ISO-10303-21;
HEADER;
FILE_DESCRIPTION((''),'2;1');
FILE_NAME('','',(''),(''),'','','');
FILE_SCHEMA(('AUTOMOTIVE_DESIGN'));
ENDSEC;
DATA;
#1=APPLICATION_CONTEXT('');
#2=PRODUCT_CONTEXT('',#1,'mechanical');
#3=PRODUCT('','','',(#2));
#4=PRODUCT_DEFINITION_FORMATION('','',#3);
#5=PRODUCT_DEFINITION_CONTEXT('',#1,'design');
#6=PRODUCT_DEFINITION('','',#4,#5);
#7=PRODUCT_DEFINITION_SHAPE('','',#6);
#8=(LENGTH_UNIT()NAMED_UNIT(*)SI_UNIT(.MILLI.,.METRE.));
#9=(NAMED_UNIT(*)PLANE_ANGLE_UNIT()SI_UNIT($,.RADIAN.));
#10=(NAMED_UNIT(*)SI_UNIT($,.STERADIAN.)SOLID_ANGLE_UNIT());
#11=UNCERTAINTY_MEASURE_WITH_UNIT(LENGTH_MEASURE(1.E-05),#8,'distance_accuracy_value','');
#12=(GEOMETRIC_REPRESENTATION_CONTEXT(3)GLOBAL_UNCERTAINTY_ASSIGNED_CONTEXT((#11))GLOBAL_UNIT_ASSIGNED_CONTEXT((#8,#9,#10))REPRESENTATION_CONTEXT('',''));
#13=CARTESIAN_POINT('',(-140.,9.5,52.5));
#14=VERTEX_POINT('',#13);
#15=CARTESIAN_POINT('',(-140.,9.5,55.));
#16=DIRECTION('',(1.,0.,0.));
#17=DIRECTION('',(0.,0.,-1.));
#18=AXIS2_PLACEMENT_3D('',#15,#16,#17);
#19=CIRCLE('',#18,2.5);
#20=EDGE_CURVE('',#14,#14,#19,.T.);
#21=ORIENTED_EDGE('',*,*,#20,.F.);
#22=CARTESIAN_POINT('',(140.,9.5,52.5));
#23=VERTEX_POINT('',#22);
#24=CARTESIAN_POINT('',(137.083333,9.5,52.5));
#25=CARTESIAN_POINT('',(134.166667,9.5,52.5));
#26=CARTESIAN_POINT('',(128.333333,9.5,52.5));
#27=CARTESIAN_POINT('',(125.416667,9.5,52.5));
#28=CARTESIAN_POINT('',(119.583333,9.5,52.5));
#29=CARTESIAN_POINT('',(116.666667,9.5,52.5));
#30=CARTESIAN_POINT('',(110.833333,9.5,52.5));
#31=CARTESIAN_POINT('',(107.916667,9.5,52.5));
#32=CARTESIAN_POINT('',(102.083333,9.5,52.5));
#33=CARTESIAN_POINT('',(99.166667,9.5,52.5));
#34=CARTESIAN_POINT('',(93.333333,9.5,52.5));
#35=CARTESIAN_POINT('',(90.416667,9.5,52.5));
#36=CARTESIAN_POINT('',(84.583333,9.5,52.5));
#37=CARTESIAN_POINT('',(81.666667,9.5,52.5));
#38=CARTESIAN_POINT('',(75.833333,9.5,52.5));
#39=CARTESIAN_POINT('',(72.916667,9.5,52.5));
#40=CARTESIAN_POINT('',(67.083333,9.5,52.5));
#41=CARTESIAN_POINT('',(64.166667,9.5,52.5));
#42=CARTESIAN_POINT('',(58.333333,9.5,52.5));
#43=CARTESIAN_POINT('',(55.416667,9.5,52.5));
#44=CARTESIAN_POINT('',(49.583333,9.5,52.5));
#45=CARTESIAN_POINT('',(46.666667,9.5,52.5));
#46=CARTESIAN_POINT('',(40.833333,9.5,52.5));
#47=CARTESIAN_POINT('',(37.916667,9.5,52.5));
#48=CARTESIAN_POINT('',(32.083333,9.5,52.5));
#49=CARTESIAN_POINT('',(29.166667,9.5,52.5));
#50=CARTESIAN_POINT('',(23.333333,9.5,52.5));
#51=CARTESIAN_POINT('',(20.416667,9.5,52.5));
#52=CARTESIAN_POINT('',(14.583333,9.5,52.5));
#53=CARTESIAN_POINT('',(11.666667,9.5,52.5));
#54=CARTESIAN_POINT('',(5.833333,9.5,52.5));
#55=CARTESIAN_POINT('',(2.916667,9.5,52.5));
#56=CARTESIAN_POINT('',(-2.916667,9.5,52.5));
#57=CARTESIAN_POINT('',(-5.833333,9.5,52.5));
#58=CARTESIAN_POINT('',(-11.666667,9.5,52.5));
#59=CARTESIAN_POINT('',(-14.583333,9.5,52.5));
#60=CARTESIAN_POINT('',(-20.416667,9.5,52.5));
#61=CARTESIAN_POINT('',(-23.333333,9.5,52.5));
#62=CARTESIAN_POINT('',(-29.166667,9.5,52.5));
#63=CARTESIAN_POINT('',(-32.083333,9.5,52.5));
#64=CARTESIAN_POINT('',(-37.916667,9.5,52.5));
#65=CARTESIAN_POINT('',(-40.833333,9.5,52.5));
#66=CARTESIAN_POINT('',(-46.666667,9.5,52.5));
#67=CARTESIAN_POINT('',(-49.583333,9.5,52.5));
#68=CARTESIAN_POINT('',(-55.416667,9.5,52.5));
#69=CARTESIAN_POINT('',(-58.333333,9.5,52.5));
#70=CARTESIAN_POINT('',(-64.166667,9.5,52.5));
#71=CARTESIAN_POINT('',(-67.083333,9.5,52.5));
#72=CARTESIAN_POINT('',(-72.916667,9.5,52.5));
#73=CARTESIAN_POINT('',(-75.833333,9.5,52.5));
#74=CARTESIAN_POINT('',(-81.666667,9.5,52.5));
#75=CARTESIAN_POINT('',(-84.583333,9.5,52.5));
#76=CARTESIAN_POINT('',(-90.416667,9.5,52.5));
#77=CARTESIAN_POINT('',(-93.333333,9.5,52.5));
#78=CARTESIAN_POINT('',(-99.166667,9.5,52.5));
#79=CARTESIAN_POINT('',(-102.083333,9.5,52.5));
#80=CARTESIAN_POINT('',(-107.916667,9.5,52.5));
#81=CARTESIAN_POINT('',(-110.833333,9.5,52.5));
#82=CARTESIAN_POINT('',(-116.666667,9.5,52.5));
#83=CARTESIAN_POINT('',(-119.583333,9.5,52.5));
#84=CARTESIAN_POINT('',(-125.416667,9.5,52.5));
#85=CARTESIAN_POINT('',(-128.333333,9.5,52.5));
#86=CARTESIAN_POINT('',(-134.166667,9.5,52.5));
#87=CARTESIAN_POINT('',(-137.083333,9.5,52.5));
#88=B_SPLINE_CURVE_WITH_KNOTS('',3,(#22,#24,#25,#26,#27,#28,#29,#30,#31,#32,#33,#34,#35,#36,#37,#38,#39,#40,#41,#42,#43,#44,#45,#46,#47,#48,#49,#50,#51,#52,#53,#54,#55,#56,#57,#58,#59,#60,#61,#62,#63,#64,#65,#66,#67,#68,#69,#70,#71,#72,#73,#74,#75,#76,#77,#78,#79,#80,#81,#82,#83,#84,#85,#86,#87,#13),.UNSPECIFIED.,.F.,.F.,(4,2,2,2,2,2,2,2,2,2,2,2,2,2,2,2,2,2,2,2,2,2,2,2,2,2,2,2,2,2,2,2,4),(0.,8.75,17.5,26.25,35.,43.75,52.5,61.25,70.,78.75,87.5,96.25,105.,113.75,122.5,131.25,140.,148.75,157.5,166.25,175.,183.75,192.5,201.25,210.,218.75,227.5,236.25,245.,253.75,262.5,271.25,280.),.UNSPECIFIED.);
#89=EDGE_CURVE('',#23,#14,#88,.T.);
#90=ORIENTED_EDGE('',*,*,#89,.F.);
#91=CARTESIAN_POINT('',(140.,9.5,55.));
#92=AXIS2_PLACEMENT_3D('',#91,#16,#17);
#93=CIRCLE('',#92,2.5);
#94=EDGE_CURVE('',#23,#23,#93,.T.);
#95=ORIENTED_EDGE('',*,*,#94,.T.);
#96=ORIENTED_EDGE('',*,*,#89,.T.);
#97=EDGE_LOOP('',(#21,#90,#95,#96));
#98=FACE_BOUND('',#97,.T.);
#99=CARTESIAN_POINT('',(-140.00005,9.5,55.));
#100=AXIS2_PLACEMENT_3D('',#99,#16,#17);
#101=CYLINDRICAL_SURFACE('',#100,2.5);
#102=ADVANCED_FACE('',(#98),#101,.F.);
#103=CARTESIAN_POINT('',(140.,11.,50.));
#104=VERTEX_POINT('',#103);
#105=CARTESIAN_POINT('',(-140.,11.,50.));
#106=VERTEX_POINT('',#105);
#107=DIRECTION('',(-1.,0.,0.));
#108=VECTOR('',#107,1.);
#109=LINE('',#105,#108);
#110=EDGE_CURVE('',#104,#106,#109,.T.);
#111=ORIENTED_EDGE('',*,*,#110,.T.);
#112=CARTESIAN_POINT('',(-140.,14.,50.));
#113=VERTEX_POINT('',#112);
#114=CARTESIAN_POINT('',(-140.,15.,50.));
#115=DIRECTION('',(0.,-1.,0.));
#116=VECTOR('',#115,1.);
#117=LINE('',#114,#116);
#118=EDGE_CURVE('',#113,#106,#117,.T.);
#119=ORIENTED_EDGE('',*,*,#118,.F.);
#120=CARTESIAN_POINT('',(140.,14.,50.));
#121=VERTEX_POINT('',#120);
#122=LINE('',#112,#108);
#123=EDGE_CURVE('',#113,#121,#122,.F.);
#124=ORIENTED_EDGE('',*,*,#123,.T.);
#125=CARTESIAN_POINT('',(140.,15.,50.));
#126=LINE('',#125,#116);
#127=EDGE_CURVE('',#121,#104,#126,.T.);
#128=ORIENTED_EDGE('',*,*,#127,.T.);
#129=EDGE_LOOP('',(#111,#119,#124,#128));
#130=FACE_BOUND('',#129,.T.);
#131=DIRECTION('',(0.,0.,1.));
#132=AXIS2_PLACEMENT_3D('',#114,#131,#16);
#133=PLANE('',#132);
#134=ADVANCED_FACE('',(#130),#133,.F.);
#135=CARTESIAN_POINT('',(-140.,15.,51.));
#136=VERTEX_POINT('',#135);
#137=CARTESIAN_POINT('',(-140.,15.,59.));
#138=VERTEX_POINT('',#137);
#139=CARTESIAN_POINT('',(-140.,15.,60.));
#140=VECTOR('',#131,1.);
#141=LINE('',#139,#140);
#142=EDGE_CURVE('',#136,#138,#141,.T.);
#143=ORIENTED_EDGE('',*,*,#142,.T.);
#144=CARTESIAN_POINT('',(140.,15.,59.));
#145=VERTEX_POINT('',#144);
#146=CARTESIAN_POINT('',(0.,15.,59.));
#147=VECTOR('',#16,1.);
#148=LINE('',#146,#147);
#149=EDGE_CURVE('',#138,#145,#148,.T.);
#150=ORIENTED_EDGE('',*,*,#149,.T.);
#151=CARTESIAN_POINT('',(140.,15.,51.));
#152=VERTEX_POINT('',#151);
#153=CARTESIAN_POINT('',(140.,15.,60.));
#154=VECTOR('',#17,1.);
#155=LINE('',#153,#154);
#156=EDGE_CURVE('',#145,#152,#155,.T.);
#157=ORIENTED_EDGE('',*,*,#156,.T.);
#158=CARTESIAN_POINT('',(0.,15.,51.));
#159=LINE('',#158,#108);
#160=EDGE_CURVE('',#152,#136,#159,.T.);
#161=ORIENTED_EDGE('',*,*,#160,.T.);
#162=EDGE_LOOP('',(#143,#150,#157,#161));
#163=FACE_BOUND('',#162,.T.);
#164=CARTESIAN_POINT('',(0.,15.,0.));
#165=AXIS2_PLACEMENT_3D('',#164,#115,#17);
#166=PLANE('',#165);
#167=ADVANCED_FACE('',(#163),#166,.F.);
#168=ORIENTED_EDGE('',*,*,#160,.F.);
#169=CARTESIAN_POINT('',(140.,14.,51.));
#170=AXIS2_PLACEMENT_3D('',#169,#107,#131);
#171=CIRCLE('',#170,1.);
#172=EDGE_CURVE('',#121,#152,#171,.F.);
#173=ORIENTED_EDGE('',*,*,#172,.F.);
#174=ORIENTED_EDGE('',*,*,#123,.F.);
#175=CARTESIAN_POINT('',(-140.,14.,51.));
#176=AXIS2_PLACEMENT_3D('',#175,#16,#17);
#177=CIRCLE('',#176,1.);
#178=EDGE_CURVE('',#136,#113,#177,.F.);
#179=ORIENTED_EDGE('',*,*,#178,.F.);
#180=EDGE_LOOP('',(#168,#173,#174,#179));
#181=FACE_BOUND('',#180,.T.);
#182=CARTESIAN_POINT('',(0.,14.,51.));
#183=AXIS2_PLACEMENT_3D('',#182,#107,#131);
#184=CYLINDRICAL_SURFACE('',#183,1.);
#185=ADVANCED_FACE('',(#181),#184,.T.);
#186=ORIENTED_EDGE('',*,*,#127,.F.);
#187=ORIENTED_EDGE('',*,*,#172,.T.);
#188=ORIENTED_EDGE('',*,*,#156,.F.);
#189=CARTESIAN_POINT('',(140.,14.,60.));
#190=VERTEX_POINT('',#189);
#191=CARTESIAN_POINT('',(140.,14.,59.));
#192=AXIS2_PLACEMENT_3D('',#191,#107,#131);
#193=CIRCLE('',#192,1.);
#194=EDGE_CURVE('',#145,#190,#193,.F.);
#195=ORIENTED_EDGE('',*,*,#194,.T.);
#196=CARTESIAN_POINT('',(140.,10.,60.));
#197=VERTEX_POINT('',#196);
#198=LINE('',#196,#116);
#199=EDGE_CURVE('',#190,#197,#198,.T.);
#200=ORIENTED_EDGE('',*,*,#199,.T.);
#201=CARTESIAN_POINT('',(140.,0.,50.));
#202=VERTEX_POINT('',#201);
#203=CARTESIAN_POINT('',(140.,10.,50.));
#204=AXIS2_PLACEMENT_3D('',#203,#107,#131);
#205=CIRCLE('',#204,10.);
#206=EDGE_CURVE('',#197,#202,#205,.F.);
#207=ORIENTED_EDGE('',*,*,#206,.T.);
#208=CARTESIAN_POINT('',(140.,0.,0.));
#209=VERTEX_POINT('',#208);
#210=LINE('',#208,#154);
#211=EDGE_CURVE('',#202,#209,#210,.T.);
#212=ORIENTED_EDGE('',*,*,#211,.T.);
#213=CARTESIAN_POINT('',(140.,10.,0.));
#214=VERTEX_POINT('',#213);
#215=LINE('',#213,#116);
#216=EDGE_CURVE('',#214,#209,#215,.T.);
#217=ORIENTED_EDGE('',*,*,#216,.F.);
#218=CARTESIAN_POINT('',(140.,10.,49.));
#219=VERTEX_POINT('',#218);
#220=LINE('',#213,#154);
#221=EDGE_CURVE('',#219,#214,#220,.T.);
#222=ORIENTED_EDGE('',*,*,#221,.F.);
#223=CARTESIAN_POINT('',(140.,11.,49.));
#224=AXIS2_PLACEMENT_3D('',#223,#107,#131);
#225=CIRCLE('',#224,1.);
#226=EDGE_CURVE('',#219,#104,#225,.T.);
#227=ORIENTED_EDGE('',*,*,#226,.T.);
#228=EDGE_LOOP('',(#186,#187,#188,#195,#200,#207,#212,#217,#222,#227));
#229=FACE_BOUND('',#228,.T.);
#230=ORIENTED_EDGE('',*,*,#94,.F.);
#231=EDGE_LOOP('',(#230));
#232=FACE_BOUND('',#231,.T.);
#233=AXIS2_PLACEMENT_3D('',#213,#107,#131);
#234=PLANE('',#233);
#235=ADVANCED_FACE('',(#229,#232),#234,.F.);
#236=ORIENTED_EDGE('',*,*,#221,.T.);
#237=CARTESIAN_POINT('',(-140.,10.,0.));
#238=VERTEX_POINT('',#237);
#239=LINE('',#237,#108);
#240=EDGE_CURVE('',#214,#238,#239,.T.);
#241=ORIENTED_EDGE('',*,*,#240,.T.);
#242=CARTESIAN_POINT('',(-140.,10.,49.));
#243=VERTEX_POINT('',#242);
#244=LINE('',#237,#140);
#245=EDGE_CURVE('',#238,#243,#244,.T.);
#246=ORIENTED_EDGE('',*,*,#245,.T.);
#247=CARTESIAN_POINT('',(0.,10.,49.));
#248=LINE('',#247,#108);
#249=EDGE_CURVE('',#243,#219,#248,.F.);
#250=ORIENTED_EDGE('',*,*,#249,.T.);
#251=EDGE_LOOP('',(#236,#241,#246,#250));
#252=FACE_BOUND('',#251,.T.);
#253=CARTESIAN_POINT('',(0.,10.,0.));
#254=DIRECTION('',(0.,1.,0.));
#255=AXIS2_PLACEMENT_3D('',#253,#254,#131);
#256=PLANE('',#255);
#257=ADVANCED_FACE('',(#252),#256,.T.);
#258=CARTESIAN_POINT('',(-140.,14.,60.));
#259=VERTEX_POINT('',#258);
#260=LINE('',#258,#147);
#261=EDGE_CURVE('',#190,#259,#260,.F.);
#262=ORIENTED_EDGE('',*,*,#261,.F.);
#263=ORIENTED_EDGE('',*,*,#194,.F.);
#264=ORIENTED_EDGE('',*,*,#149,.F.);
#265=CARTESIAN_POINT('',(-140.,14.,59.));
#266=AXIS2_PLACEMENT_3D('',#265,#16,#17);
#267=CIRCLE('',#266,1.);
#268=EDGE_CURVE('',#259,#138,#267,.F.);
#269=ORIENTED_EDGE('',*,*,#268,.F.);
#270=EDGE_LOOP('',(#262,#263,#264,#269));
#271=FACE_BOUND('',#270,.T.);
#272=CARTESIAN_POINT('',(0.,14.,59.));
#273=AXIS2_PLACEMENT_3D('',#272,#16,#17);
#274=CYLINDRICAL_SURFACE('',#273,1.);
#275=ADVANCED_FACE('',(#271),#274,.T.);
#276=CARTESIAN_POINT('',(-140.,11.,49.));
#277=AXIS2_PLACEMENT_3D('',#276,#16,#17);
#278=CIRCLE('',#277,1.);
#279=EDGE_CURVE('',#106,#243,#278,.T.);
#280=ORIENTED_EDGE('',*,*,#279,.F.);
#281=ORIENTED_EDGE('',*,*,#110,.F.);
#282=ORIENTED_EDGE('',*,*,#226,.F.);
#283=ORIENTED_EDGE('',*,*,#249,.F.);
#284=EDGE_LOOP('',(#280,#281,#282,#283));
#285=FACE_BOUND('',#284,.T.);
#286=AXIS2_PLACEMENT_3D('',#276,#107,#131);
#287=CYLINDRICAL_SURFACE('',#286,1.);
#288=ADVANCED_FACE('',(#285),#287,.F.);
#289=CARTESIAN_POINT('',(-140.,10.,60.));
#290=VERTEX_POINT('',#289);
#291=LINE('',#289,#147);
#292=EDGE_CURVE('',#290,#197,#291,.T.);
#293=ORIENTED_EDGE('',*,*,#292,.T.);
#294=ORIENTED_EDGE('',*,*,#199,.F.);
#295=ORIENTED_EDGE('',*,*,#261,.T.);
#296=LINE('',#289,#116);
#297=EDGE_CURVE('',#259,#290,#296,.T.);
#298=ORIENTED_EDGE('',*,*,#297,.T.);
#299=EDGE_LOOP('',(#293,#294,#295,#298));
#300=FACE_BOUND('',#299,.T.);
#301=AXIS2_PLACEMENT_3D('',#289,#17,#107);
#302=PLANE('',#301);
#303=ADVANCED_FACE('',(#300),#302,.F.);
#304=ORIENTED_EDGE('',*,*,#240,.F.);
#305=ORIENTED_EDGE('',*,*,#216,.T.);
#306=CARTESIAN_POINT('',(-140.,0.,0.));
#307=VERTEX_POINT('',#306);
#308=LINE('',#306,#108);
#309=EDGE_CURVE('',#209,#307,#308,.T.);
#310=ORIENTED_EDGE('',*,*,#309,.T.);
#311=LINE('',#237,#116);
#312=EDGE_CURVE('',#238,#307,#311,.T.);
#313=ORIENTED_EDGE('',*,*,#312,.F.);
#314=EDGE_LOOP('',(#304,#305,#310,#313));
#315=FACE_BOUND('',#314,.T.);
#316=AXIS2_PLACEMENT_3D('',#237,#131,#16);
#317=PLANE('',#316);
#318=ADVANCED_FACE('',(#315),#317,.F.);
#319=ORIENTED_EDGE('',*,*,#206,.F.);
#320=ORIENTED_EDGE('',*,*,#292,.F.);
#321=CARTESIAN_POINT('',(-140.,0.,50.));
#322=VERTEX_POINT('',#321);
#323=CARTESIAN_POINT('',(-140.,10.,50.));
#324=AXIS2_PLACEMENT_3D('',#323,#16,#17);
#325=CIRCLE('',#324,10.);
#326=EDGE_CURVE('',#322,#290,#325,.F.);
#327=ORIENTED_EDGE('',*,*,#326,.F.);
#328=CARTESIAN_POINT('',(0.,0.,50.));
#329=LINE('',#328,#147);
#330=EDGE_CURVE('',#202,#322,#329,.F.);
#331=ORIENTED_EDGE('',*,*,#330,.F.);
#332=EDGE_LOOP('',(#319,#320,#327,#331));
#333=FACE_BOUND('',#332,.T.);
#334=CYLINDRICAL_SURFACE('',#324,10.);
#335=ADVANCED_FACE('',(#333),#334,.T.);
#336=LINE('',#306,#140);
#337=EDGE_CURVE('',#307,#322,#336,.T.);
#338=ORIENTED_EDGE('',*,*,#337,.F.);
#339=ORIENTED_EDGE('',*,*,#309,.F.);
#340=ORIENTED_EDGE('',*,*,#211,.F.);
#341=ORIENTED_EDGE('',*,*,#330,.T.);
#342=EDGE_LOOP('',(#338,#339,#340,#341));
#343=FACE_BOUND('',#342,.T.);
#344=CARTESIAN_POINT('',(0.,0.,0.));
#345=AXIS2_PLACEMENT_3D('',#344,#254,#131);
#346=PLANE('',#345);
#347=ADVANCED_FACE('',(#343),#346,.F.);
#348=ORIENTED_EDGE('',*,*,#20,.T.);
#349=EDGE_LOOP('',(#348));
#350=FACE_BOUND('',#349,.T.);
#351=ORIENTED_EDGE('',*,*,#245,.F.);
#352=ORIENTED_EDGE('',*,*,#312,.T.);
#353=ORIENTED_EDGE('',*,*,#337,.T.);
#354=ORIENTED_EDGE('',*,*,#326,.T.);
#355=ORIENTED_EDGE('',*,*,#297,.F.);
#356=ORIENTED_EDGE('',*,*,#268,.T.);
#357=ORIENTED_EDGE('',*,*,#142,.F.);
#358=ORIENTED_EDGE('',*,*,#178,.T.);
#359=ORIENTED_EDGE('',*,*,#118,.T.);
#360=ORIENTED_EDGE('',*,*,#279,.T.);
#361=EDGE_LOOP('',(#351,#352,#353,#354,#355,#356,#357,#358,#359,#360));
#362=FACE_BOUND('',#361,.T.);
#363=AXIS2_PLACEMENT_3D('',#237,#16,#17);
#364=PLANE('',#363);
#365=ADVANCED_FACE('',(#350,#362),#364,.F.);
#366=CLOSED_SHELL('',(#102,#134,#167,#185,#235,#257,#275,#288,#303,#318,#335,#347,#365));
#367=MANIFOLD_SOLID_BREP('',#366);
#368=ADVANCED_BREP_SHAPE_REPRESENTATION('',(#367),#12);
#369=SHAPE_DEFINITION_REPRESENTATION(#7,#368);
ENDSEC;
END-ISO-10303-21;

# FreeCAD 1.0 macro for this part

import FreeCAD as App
import Part
import Sketcher
from FreeCAD import Vector
Q = App.Units.Quantity


def edges_at(feature, points):
    """Names of the edges that pass closest to the given points."""
    edges = feature.Shape.Edges
    near = lambda p: min(range(len(edges)), key=lambda i: edges[i].distToShape(Part.Vertex(*p))[0])
    return sorted({f"Edge{near(p) + 1}" for p in points})


def add_polygon(sketch, points):
    """Adds a closed chain of lines whose ends are joined by coincident constraints."""
    first, n = sketch.GeometryCount, len(points)
    for a, b in zip(points, points[1:] + points[:1]):
        sketch.addGeometry(Part.LineSegment(App.Vector(*a, 0), App.Vector(*b, 0)), False)
    for i in range(n):
        sketch.addConstraint(Sketcher.Constraint("Coincident", first + i, 2, first + (i + 1) % n, 1))

doc = App.newDocument("Part")
params = doc.addObject("Spreadsheet::Sheet", "Params")
for row, (alias, value) in enumerate([
    ("sketch1_width", "280 mm"),
    ("sketch1_height", "60 mm"),
    ("pad1_length", "10 mm"),
    ("sketch2_width", "280 mm"),
    ("sketch2_height", "10 mm"),
    ("pad2_length", "5 mm"),
    ("sketch3_diameter", "5 mm"),
    ("fillet_radius", "10 mm"),
    ("fillet2_radius", "1 mm"),
    ("fillet3_radius", "1 mm"),
    ("fillet4_radius", "1 mm"),
], start=1):
    params.set(f"A{row}", alias)
    params.set(f"B{row}", "=" + value)
    params.setAlias(f"B{row}", alias)

body = doc.addObject("PartDesign::Body", "Body")

# Sketch on XZ plane
sketch1 = doc.addObject("Sketcher::SketchObject", "Sketch")
body.addObject(sketch1)
sketch1.AttachmentSupport = (doc.XZ_Plane, [""])
sketch1.MapMode = "FlatFace"
add_polygon(sketch1, [(-140, 0), (-140, 60), (140, 60), (140, 0)])  # lines 0-3
sketch1.addConstraint(Sketcher.Constraint("Vertical", 0))
sketch1.addConstraint(Sketcher.Constraint("Horizontal", 1))
sketch1.addConstraint(Sketcher.Constraint("Vertical", 2))
sketch1.addConstraint(Sketcher.Constraint("Horizontal", 3))
sketch1.addConstraint(Sketcher.Constraint("Symmetric", 2, 2, 3, 2, -1, 1))
sketch1.addConstraint(Sketcher.Constraint("DistanceX", 1, 1, 1, 2, Q("280 mm")))
sketch1.addConstraint(Sketcher.Constraint("DistanceY", 0, 1, 0, 2, Q("60 mm")))
sketch1.setExpression("Constraints[9]", "Params.sketch1_width")
sketch1.setExpression("Constraints[10]", "Params.sketch1_height")
pad1 = doc.addObject("PartDesign::Pad", "Pad")
body.addObject(pad1)
pad1.Profile = sketch1
pad1.setExpression("Length", "Params.pad1_length")
pad1.Reversed = True

# Sketch on XZ plane
sketch2 = doc.addObject("Sketcher::SketchObject", "Sketch001")
body.addObject(sketch2)
sketch2.AttachmentSupport = (doc.XZ_Plane, [""])
sketch2.MapMode = "FlatFace"
sketch2.AttachmentOffset = App.Placement(Vector(0, 0, -10), App.Rotation())
add_polygon(sketch2, [(-140, 50), (-140, 60), (140, 60), (140, 50)])  # lines 0-3
sketch2.addConstraint(Sketcher.Constraint("Vertical", 0))
sketch2.addConstraint(Sketcher.Constraint("Horizontal", 1))
sketch2.addConstraint(Sketcher.Constraint("Vertical", 2))
sketch2.addConstraint(Sketcher.Constraint("Horizontal", 3))
sketch2.addConstraint(Sketcher.Constraint("DistanceX", 1, 1, 1, 2, Q("280 mm")))
sketch2.addConstraint(Sketcher.Constraint("DistanceY", 0, 1, 0, 2, Q("10 mm")))
sketch2.addConstraint(Sketcher.Constraint("DistanceX", 0, 2, -1, 1, Q("140 mm")))
sketch2.addConstraint(Sketcher.Constraint("DistanceY", -1, 1, 0, 2, Q("60 mm")))
sketch2.setExpression("Constraints[8]", "Params.sketch2_width")
sketch2.setExpression("Constraints[9]", "Params.sketch2_height")
pad2 = doc.addObject("PartDesign::Pad", "Pad001")
body.addObject(pad2)
pad2.Profile = sketch2
pad2.setExpression("Length", "Params.pad2_length")
pad2.Reversed = True

# Sketch on YZ plane
sketch3 = doc.addObject("Sketcher::SketchObject", "Sketch002")
body.addObject(sketch3)
sketch3.AttachmentSupport = (doc.YZ_Plane, [""])
sketch3.MapMode = "FlatFace"
sketch3.AttachmentOffset = App.Placement(Vector(0, 0, 140), App.Rotation())
sketch3.addGeometry(Part.Circle(Vector(9.5, 55, 0), Vector(0, 0, 1), 2.5), False)
sketch3.addConstraint(Sketcher.Constraint("Diameter", 0, Q("5 mm")))
sketch3.addConstraint(Sketcher.Constraint("DistanceY", -1, 1, 0, 3, Q("55 mm")))
sketch3.addConstraint(Sketcher.Constraint("DistanceX", -1, 1, 0, 3, Q("9.5 mm")))
sketch3.setExpression("Constraints[0]", "Params.sketch3_diameter")
pocket1 = doc.addObject("PartDesign::Pocket", "Pocket")
body.addObject(pocket1)
pocket1.Profile = sketch3
pocket1.Type = "ThroughAll"
doc.recompute()

fillet = doc.addObject("PartDesign::Fillet", "Fillet")
body.addObject(fillet)
fillet.Base = (pocket1, edges_at(pocket1, [(0, 0, 60)]))
fillet.setExpression("Radius", "Params.fillet_radius")
doc.recompute()

fillet2 = doc.addObject("PartDesign::Fillet", "Fillet001")
body.addObject(fillet2)
fillet2.Base = (fillet, edges_at(fillet, [(0, 15, 60)]))
fillet2.setExpression("Radius", "Params.fillet2_radius")
doc.recompute()

fillet3 = doc.addObject("PartDesign::Fillet", "Fillet002")
body.addObject(fillet3)
fillet3.Base = (fillet2, edges_at(fillet2, [(0, 15, 50)]))
fillet3.setExpression("Radius", "Params.fillet3_radius")
doc.recompute()

fillet4 = doc.addObject("PartDesign::Fillet", "Fillet003")
body.addObject(fillet4)
fillet4.Base = (fillet3, edges_at(fillet3, [(0, 10, 50)]))
fillet4.setExpression("Radius", "Params.fillet4_radius")

doc.recompute()
